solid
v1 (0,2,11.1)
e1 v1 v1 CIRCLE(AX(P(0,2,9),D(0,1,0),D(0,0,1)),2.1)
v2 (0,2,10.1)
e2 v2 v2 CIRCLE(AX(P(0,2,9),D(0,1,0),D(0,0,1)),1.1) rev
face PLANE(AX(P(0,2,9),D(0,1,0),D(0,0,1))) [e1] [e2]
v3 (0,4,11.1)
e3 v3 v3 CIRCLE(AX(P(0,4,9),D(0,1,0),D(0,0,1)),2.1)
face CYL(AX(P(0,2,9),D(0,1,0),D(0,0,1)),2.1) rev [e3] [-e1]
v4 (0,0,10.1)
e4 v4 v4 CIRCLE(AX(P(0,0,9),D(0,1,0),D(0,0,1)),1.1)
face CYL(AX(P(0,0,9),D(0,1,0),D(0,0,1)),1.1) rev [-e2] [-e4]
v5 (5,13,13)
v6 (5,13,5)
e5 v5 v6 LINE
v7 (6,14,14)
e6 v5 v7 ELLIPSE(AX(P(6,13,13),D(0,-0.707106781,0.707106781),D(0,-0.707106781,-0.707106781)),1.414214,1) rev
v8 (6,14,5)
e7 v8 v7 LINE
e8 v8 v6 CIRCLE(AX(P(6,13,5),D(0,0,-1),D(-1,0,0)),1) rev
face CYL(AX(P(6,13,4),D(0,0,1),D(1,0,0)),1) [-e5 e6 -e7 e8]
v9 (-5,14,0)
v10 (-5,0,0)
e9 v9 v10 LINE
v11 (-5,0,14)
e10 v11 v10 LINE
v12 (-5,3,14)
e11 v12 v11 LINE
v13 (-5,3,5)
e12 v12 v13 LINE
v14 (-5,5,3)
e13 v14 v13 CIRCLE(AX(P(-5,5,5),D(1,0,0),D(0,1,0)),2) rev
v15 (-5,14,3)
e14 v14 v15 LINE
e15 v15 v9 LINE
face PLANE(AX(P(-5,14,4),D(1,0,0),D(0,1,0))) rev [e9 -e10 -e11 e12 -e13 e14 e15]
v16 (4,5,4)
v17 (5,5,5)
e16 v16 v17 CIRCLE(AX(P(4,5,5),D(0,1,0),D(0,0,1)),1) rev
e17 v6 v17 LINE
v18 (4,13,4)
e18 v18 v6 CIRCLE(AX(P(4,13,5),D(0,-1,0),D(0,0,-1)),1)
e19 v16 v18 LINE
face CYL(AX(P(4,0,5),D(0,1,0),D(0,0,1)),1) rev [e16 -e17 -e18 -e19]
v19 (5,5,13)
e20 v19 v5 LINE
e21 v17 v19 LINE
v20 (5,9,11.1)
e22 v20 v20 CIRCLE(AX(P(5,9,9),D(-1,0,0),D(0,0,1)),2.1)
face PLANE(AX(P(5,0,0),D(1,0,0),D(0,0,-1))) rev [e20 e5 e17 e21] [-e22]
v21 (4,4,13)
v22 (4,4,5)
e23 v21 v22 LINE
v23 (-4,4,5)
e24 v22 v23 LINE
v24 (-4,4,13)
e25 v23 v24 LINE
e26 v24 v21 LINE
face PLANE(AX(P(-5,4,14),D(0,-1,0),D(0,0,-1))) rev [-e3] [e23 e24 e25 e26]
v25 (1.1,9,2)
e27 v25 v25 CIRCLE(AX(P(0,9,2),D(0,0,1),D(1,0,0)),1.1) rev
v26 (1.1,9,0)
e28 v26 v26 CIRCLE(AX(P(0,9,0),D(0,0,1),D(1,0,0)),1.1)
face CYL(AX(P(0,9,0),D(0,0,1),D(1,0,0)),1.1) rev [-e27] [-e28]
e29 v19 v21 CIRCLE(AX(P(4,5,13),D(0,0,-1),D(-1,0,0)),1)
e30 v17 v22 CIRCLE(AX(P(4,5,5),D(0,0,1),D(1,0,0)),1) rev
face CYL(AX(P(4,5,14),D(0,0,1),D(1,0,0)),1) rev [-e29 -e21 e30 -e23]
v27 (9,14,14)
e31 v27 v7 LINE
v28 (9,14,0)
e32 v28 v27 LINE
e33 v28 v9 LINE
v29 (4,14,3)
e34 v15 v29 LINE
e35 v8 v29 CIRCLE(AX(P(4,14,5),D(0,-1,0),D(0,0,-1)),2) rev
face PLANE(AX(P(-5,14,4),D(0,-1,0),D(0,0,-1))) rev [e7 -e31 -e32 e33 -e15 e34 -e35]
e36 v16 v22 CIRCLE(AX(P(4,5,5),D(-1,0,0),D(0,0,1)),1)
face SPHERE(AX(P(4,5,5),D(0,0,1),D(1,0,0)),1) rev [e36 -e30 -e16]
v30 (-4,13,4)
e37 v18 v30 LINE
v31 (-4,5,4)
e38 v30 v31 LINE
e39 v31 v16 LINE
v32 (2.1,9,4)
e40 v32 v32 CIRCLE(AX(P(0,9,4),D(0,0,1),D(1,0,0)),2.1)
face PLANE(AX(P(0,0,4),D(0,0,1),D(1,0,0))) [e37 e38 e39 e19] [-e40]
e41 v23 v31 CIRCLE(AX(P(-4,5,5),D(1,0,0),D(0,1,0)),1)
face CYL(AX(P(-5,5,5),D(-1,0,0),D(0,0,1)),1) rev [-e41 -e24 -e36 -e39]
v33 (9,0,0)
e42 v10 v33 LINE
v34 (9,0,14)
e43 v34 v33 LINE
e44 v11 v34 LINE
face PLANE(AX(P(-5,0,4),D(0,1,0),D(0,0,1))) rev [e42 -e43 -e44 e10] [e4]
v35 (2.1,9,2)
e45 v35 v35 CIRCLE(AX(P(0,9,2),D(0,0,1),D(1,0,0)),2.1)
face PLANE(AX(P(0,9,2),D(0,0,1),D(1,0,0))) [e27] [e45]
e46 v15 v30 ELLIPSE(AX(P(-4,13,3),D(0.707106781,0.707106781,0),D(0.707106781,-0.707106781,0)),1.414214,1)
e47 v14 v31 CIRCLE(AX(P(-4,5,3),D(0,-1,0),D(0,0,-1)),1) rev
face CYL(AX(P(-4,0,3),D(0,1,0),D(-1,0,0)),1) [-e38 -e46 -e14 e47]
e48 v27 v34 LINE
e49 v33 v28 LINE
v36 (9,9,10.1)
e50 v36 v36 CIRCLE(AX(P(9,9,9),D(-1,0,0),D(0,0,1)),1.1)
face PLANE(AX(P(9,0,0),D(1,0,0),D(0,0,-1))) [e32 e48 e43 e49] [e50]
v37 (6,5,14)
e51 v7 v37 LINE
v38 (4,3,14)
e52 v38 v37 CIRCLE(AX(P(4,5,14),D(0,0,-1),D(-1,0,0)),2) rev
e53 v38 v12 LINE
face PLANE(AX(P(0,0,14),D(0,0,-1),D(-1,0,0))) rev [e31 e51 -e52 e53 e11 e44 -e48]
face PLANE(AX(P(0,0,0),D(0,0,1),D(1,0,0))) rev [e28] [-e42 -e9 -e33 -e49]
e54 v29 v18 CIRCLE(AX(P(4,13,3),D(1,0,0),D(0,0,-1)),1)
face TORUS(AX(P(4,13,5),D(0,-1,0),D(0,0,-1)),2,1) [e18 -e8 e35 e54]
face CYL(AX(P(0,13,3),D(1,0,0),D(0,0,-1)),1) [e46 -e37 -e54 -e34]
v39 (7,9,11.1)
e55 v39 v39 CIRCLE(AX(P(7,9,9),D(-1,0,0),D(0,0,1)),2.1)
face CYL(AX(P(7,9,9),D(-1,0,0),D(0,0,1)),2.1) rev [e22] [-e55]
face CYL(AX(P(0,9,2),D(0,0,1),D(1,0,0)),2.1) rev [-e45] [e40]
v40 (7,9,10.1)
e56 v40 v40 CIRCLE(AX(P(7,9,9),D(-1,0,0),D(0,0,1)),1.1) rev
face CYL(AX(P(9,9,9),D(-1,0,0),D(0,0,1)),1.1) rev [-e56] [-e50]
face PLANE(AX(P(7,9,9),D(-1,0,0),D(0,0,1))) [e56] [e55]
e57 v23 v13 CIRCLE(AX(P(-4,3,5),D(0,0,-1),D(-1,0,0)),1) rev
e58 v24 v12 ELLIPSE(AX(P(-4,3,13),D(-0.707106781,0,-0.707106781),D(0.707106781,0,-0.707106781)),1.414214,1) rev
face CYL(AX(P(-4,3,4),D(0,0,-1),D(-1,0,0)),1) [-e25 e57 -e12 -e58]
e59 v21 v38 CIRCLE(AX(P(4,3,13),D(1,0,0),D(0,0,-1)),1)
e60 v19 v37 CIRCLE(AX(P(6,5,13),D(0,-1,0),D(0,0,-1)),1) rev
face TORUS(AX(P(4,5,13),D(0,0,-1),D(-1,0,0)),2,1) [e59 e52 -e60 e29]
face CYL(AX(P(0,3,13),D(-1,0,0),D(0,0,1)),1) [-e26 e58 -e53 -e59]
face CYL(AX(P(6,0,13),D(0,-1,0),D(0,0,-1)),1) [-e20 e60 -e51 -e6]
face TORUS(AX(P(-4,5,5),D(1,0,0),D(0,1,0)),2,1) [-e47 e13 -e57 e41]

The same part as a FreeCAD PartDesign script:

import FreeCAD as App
import Part
import Sketcher
from FreeCAD import Vector


def edges_at(feature, points):
    """Names of the edges that pass closest to the given points."""
    edges = feature.Shape.Edges
    near = lambda p: min(range(len(edges)), key=lambda i: edges[i].distToShape(Part.Vertex(*p))[0])
    return sorted({f"Edge{near(p) + 1}" for p in points})

doc = App.newDocument("Part")
body = doc.addObject("PartDesign::Body", "Body")

sketch1 = body.newObject("Sketcher::SketchObject", "Sketch")
sketch1.AttachmentSupport = (doc.getObject("XY_Plane"), [""])
sketch1.MapMode = "FlatFace"
sketch1.addGeometry(Part.LineSegment(Vector(-5, 14, 0), Vector(-5, 0, 0)), False)
sketch1.addGeometry(Part.LineSegment(Vector(-5, 0, 0), Vector(5, 0, 0)), False)
sketch1.addGeometry(Part.LineSegment(Vector(5, 0, 0), Vector(5, 14, 0)), False)
sketch1.addGeometry(Part.LineSegment(Vector(5, 14, 0), Vector(-5, 14, 0)), False)
sketch1.addConstraint(Sketcher.Constraint("Coincident", 0, 2, 1, 1))
sketch1.addConstraint(Sketcher.Constraint("Coincident", 1, 2, 2, 1))
sketch1.addConstraint(Sketcher.Constraint("Coincident", 2, 2, 3, 1))
sketch1.addConstraint(Sketcher.Constraint("Coincident", 3, 2, 0, 1))
sketch1.addConstraint(Sketcher.Constraint("Vertical", 0))
sketch1.addConstraint(Sketcher.Constraint("Horizontal", 1))
sketch1.addConstraint(Sketcher.Constraint("Vertical", 2))
sketch1.addConstraint(Sketcher.Constraint("Horizontal", 3))
sketch1.addConstraint(Sketcher.Constraint("Symmetric", 0, 2, 1, 2, -1, 1))
sketch1.addConstraint(Sketcher.Constraint("DistanceX", 1, 1, 1, 2, 10.0))
sketch1.addConstraint(Sketcher.Constraint("DistanceY", 0, 2, 0, 1, 14.0))
pad1 = body.newObject("PartDesign::Pad", "Pad")
pad1.Profile = sketch1
pad1.Length = 4

sketch2 = body.newObject("Sketcher::SketchObject", "Sketch001")
sketch2.AttachmentSupport = (doc.getObject("XY_Plane"), [""])
sketch2.MapMode = "FlatFace"
sketch2.AttachmentOffset = App.Placement(Vector(0, 0, 4), App.Rotation())
sketch2.addGeometry(Part.LineSegment(Vector(-5, 4, 0), Vector(-5, 0, 0)), False)
sketch2.addGeometry(Part.LineSegment(Vector(-5, 0, 0), Vector(5, 0, 0)), False)
sketch2.addGeometry(Part.LineSegment(Vector(5, 0, 0), Vector(5, 4, 0)), False)
sketch2.addGeometry(Part.LineSegment(Vector(5, 4, 0), Vector(-5, 4, 0)), False)
sketch2.addConstraint(Sketcher.Constraint("Coincident", 0, 2, 1, 1))
sketch2.addConstraint(Sketcher.Constraint("Coincident", 1, 2, 2, 1))
sketch2.addConstraint(Sketcher.Constraint("Coincident", 2, 2, 3, 1))
sketch2.addConstraint(Sketcher.Constraint("Coincident", 3, 2, 0, 1))
sketch2.addConstraint(Sketcher.Constraint("Vertical", 0))
sketch2.addConstraint(Sketcher.Constraint("Horizontal", 1))
sketch2.addConstraint(Sketcher.Constraint("Vertical", 2))
sketch2.addConstraint(Sketcher.Constraint("Horizontal", 3))
sketch2.addConstraint(Sketcher.Constraint("Symmetric", 0, 2, 1, 2, -1, 1))
sketch2.addConstraint(Sketcher.Constraint("DistanceX", 1, 1, 1, 2, 10.0))
sketch2.addConstraint(Sketcher.Constraint("DistanceY", 0, 2, 0, 1, 4.0))
pad2 = body.newObject("PartDesign::Pad", "Pad001")
pad2.Profile = sketch2
pad2.Length = 10

sketch3 = body.newObject("Sketcher::SketchObject", "Sketch002")
sketch3.AttachmentSupport = (doc.getObject("XY_Plane"), [""])
sketch3.MapMode = "FlatFace"
sketch3.AttachmentOffset = App.Placement(Vector(0, 0, 4), App.Rotation())
sketch3.addGeometry(Part.Circle(Vector(0, 9, 0), Vector(0, 0, 1), 1.1), False)
sketch3.addConstraint(Sketcher.Constraint("PointOnObject", 0, 3, -2))
sketch3.addConstraint(Sketcher.Constraint("Diameter", 0, 2.2))
sketch3.addConstraint(Sketcher.Constraint("DistanceY", -1, 1, 0, 3, 9.0))
pocket1 = body.newObject("PartDesign::Pocket", "Pocket")
pocket1.Profile = sketch3
pocket1.Type = "ThroughAll"

sketch4 = body.newObject("Sketcher::SketchObject", "Sketch003")
sketch4.AttachmentSupport = (doc.getObject("XZ_Plane"), [""])
sketch4.MapMode = "FlatFace"
sketch4.AttachmentOffset = App.Placement(Vector(0, 0, -4), App.Rotation())
sketch4.addGeometry(Part.Circle(Vector(0, 9, 0), Vector(0, 0, 1), 1.1), False)
sketch4.addConstraint(Sketcher.Constraint("PointOnObject", 0, 3, -2))
sketch4.addConstraint(Sketcher.Constraint("Diameter", 0, 2.2))
sketch4.addConstraint(Sketcher.Constraint("DistanceY", -1, 1, 0, 3, 9.0))
pocket2 = body.newObject("PartDesign::Pocket", "Pocket001")
pocket2.Profile = sketch4
pocket2.Type = "ThroughAll"
pocket2.Reversed = True

sketch5 = body.newObject("Sketcher::SketchObject", "Sketch004")
sketch5.AttachmentSupport = (doc.getObject("XY_Plane"), [""])
sketch5.MapMode = "FlatFace"
sketch5.AttachmentOffset = App.Placement(Vector(0, 0, 4), App.Rotation())
sketch5.addGeometry(Part.Circle(Vector(0, 9, 0), Vector(0, 0, 1), 2.1), False)
sketch5.addConstraint(Sketcher.Constraint("PointOnObject", 0, 3, -2))
sketch5.addConstraint(Sketcher.Constraint("Diameter", 0, 4.2))
sketch5.addConstraint(Sketcher.Constraint("DistanceY", -1, 1, 0, 3, 9.0))
pocket3 = body.newObject("PartDesign::Pocket", "Pocket002")
pocket3.Profile = sketch5
pocket3.Length = 2

sketch6 = body.newObject("Sketcher::SketchObject", "Sketch005")
sketch6.AttachmentSupport = (doc.getObject("XZ_Plane"), [""])
sketch6.MapMode = "FlatFace"
sketch6.AttachmentOffset = App.Placement(Vector(0, 0, -4), App.Rotation())
sketch6.addGeometry(Part.Circle(Vector(0, 9, 0), Vector(0, 0, 1), 2.1), False)
sketch6.addConstraint(Sketcher.Constraint("PointOnObject", 0, 3, -2))
sketch6.addConstraint(Sketcher.Constraint("Diameter", 0, 4.2))
sketch6.addConstraint(Sketcher.Constraint("DistanceY", -1, 1, 0, 3, 9.0))
pocket4 = body.newObject("PartDesign::Pocket", "Pocket003")
pocket4.Profile = sketch6
pocket4.Length = 2
pocket4.Reversed = True

sketch7 = body.newObject("Sketcher::SketchObject", "Sketch006")
sketch7.AttachmentSupport = (doc.getObject("YZ_Plane"), [""])
sketch7.MapMode = "FlatFace"
sketch7.AttachmentOffset = App.Placement(Vector(0, 0, 5), App.Rotation())
sketch7.addGeometry(Part.LineSegment(Vector(14, 14, 0), Vector(0, 14, 0)), False)
sketch7.addGeometry(Part.LineSegment(Vector(0, 14, 0), Vector(0, 0, 0)), False)
sketch7.addGeometry(Part.LineSegment(Vector(0, 0, 0), Vector(14, 0, 0)), False)
sketch7.addGeometry(Part.LineSegment(Vector(14, 0, 0), Vector(14, 14, 0)), False)
sketch7.addConstraint(Sketcher.Constraint("Coincident", 0, 2, 1, 1))
sketch7.addConstraint(Sketcher.Constraint("Coincident", 1, 2, 2, 1))
sketch7.addConstraint(Sketcher.Constraint("Coincident", 2, 2, 3, 1))
sketch7.addConstraint(Sketcher.Constraint("Coincident", 3, 2, 0, 1))
sketch7.addConstraint(Sketcher.Constraint("Horizontal", 0))
sketch7.addConstraint(Sketcher.Constraint("Vertical", 1))
sketch7.addConstraint(Sketcher.Constraint("Horizontal", 2))
sketch7.addConstraint(Sketcher.Constraint("Vertical", 3))
sketch7.addConstraint(Sketcher.Constraint("Coincident", 1, 2, -1, 1))
sketch7.addConstraint(Sketcher.Constraint("Equal", 2, 1))
sketch7.addConstraint(Sketcher.Constraint("DistanceX", 0, 2, 0, 1, 14.0))
pad3 = body.newObject("PartDesign::Pad", "Pad002")
pad3.Profile = sketch7
pad3.Length = 4

sketch8 = body.newObject("Sketcher::SketchObject", "Sketch007")
sketch8.AttachmentSupport = (doc.getObject("YZ_Plane"), [""])
sketch8.MapMode = "FlatFace"
sketch8.AttachmentOffset = App.Placement(Vector(0, 0, 5), App.Rotation())
sketch8.addGeometry(Part.Circle(Vector(9, 9, 0), Vector(0, 0, 1), 1.1), False)
sketch8.addConstraint(Sketcher.Constraint("Diameter", 0, 2.2))
sketch8.addConstraint(Sketcher.Constraint("DistanceX", -1, 1, 0, 3, 9.0))
sketch8.addConstraint(Sketcher.Constraint("DistanceY", -1, 1, 0, 3, 9.0))
pocket5 = body.newObject("PartDesign::Pocket", "Pocket004")
pocket5.Profile = sketch8
pocket5.Type = "ThroughAll"
pocket5.Reversed = True

sketch9 = body.newObject("Sketcher::SketchObject", "Sketch008")
sketch9.AttachmentSupport = (doc.getObject("YZ_Plane"), [""])
sketch9.MapMode = "FlatFace"
sketch9.AttachmentOffset = App.Placement(Vector(0, 0, 5), App.Rotation())
sketch9.addGeometry(Part.Circle(Vector(9, 9, 0), Vector(0, 0, 1), 2.1), False)
sketch9.addConstraint(Sketcher.Constraint("Diameter", 0, 4.2))
sketch9.addConstraint(Sketcher.Constraint("DistanceX", -1, 1, 0, 3, 9.0))
sketch9.addConstraint(Sketcher.Constraint("DistanceY", -1, 1, 0, 3, 9.0))
pocket6 = body.newObject("PartDesign::Pocket", "Pocket005")
pocket6.Profile = sketch9
pocket6.Length = 2
pocket6.Reversed = True
doc.recompute()

fillet = body.newObject("PartDesign::Fillet", "Fillet")
fillet.Base = (pocket6, edges_at(pocket6, [
    (5, 9, 4),
    (-5, 4, 9),
    (0, 4, 4),
    (5, 4, 9),
    (0, 14, 4),
    (0, 4, 14),
    (-5, 9, 4),
    (5, 14, 9),
    (5, 9, 14),
]))
fillet.Radius = 1

doc.recompute()
